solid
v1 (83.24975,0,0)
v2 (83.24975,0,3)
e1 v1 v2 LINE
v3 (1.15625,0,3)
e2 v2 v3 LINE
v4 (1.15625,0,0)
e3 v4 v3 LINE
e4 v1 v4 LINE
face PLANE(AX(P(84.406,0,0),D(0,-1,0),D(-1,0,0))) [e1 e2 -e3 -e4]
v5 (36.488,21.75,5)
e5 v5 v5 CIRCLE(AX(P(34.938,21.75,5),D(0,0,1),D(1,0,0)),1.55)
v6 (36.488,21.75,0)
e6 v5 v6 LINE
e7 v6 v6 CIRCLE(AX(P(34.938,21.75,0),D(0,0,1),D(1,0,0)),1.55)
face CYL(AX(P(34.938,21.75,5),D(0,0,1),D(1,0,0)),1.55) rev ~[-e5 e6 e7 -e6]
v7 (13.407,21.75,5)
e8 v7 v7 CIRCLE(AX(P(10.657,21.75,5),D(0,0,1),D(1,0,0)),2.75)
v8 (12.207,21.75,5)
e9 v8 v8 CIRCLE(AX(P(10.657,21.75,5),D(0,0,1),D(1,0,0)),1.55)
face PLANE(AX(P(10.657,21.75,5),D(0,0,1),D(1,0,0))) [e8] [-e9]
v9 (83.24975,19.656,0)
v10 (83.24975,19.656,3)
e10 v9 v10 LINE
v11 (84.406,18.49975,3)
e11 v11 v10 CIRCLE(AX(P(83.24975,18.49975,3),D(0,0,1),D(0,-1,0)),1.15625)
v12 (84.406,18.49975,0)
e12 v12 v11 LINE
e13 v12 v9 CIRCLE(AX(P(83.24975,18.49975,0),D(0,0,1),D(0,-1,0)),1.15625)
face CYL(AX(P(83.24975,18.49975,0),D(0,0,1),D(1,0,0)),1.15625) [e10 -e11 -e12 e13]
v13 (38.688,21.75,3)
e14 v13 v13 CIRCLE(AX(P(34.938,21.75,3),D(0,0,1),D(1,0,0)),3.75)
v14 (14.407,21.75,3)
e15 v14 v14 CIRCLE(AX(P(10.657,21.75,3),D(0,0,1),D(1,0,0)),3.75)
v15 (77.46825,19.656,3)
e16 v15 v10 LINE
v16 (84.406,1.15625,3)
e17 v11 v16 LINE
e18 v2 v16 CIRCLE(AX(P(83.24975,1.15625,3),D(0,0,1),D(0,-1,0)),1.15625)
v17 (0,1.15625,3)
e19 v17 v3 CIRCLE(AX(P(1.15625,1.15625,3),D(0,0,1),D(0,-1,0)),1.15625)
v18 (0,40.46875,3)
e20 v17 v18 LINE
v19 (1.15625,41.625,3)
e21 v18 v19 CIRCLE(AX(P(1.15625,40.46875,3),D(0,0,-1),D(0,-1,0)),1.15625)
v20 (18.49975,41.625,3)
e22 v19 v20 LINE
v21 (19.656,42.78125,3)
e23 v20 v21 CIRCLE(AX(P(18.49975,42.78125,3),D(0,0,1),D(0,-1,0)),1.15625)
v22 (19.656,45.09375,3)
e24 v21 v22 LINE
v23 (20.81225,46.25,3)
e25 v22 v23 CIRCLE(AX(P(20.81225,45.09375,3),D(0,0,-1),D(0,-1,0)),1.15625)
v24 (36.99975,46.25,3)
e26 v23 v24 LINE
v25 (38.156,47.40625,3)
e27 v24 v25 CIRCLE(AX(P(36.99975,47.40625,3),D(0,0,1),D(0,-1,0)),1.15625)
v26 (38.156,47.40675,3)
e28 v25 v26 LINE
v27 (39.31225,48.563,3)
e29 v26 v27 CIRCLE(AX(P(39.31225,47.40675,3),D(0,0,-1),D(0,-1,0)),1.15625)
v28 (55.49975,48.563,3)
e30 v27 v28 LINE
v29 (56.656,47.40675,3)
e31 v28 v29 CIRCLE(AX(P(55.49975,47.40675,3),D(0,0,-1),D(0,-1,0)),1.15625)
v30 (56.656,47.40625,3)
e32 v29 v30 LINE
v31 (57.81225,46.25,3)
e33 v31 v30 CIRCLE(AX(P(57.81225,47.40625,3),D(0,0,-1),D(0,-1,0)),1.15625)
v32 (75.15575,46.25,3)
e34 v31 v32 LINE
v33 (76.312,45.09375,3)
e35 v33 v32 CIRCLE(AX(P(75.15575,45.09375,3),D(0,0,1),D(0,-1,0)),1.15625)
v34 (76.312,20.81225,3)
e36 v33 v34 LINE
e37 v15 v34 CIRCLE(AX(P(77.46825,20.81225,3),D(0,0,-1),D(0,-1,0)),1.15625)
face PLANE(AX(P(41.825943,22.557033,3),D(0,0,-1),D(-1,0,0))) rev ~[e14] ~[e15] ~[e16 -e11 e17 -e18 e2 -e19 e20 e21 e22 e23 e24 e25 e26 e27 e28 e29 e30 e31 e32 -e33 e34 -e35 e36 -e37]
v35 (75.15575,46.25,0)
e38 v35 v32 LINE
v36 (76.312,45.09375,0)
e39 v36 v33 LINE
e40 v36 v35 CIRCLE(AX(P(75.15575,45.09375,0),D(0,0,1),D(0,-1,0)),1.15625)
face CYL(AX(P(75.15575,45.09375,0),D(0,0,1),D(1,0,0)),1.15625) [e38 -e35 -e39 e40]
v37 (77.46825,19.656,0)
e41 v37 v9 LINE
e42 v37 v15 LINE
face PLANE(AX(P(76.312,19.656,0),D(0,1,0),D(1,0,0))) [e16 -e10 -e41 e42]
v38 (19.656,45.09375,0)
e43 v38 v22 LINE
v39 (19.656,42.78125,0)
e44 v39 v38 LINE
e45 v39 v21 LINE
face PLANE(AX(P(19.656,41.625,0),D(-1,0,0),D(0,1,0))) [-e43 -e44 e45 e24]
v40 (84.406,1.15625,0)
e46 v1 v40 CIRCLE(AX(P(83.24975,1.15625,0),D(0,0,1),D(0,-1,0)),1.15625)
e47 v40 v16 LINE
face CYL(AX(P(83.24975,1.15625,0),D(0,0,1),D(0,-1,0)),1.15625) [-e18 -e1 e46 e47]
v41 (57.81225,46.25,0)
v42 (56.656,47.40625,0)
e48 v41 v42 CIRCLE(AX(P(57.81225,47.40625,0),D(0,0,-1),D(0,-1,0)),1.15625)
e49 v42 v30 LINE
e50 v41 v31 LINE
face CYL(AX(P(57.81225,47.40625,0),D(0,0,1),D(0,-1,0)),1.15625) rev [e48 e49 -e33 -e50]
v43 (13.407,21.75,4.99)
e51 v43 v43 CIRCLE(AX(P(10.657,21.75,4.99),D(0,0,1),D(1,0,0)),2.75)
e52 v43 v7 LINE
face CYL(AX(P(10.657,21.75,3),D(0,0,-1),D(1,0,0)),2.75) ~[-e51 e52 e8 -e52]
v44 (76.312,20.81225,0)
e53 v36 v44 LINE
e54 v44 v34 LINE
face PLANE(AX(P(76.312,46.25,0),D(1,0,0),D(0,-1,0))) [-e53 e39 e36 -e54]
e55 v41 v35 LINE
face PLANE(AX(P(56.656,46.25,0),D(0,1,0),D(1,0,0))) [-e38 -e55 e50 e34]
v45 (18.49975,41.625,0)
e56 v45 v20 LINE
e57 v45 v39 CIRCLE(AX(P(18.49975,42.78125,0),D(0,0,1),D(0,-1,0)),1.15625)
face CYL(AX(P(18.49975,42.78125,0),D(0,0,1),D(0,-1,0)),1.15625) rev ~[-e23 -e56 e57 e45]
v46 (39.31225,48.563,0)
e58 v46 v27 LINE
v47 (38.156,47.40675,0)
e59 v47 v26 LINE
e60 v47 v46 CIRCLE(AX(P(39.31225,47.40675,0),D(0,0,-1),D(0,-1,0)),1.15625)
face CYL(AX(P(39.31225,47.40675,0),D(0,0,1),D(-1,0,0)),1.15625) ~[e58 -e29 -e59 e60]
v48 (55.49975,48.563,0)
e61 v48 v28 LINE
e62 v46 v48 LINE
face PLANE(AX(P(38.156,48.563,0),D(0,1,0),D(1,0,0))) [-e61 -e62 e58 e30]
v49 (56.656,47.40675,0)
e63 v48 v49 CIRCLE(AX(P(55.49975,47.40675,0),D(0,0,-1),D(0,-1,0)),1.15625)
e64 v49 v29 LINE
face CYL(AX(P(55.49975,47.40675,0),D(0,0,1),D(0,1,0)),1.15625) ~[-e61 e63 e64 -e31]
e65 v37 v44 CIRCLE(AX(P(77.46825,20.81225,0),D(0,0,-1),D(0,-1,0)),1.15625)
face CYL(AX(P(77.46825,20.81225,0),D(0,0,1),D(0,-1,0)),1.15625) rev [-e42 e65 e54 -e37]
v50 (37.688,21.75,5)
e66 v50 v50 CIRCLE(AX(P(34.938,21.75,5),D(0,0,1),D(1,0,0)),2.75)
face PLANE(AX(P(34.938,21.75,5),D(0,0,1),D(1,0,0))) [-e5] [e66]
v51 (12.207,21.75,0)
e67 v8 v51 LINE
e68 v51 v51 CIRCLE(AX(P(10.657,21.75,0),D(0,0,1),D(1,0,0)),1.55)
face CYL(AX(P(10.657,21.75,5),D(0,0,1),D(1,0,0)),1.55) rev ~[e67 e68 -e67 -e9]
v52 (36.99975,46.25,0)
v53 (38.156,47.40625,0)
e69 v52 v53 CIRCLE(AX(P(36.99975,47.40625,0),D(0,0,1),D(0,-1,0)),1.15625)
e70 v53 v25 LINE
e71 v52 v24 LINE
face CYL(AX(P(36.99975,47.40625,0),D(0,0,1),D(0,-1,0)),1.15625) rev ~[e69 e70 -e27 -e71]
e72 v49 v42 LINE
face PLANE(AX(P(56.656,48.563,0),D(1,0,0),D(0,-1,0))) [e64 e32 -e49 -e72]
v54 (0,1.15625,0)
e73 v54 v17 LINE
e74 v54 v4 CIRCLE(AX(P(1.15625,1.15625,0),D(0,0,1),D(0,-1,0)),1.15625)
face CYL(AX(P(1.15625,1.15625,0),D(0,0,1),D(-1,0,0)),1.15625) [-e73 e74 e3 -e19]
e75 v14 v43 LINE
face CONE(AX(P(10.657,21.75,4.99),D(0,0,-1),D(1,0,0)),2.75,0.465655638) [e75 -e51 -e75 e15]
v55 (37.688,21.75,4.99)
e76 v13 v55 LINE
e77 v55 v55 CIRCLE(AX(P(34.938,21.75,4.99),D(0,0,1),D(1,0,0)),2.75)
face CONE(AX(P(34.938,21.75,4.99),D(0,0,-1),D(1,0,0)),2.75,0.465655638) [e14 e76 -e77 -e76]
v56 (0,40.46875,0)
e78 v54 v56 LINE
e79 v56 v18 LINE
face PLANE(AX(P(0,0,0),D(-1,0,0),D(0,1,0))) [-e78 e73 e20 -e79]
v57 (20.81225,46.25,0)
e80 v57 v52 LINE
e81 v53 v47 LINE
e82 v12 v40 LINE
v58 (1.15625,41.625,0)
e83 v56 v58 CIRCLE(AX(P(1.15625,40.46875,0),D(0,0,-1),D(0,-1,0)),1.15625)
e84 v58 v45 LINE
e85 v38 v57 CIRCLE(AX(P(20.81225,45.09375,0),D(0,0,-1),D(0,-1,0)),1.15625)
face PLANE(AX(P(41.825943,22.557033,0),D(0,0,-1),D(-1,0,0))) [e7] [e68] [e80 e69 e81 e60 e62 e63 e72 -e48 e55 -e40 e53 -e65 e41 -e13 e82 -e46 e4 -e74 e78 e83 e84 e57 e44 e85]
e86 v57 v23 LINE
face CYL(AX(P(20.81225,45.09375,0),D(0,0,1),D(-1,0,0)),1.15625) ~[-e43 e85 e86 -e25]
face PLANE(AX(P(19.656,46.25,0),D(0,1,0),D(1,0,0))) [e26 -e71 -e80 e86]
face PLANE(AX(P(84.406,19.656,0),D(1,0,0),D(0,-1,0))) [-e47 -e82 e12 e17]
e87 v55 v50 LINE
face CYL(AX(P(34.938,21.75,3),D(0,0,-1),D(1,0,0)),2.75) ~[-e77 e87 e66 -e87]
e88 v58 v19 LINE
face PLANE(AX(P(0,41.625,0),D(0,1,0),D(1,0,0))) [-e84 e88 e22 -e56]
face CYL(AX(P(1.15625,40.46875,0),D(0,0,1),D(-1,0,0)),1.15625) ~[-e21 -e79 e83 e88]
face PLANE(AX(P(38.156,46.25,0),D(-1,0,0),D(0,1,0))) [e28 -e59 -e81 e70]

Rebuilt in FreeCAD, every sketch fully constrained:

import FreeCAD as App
import Part
import Sketcher

V = App.Vector
Q = App.Units.Quantity


def edges_at(feature, points):
    """Names of the edges that pass closest to the given points."""
    edges = feature.Shape.Edges
    near = lambda p: min(range(len(edges)), key=lambda i: edges[i].distToShape(Part.Vertex(*p))[0])
    return sorted({f"Edge{near(p) + 1}" for p in points})


def add_polygon(sketch, points):
    """Adds a closed chain of lines whose ends are joined by coincident constraints."""
    first, n = sketch.GeometryCount, len(points)
    for a, b in zip(points, points[1:] + points[:1]):
        sketch.addGeometry(Part.LineSegment(App.Vector(*a, 0), App.Vector(*b, 0)), False)
    for i in range(n):
        sketch.addConstraint(Sketcher.Constraint("Coincident", first + i, 2, first + (i + 1) % n, 1))

doc = App.newDocument("Part")
body = doc.addObject("PartDesign::Body", "Body")

# Sketch on XY plane
sketch1 = body.newObject("Sketcher::SketchObject", "Sketch")
sketch1.AttachmentSupport = (doc.getObject("XY_Plane"), [""])
sketch1.MapMode = "FlatFace"
add_polygon(sketch1, [(0, 41.6), (0, 0), (84.4, 0), (84.4, 19.7), (76.3, 19.7), (76.3, 46.2), (56.7, 46.2), (56.7, 48.6), (38.2, 48.6), (38.2, 46.2), (19.7, 46.2), (19.7, 41.6)])  # lines 0-11
sketch1.addConstraint([
    Sketcher.Constraint("Vertical", 0),
    Sketcher.Constraint("Horizontal", 1),
    Sketcher.Constraint("Vertical", 2),
    Sketcher.Constraint("Horizontal", 3),
    Sketcher.Constraint("Vertical", 4),
    Sketcher.Constraint("Horizontal", 5),
    Sketcher.Constraint("Vertical", 6),
    Sketcher.Constraint("Horizontal", 7),
    Sketcher.Constraint("Vertical", 8),
    Sketcher.Constraint("Horizontal", 9),
    Sketcher.Constraint("Vertical", 10),
    Sketcher.Constraint("Horizontal", 11),
    Sketcher.Constraint("Coincident", 0, 2, -1, 1),
    Sketcher.Constraint("Horizontal", 5, 2, 8, 2),
    Sketcher.Constraint("Equal", 7, 9),
    Sketcher.Constraint("Equal", 5, 11),
    Sketcher.Constraint("Equal", 11, 2),
    Sketcher.Constraint("DistanceX", 7, 2, 7, 1, Q("18.5 mm")),
    Sketcher.Constraint("DistanceX", 1, 1, 1, 2, Q("84.406 mm")),
    Sketcher.Constraint("DistanceX", 3, 2, 3, 1, Q("8.094 mm")),
    Sketcher.Constraint("DistanceY", 0, 2, 0, 1, Q("41.625 mm")),
    Sketcher.Constraint("DistanceY", 4, 1, 4, 2, Q("26.594 mm")),
    Sketcher.Constraint("DistanceY", 6, 1, 6, 2, Q("2.313 mm")),
])
pad1 = body.newObject("PartDesign::Pad", "Pad")
pad1.Profile = sketch1
pad1.Length = 3

# Sketch on XY plane
sketch2 = body.newObject("Sketcher::SketchObject", "Sketch001")
sketch2.AttachmentSupport = (doc.getObject("XY_Plane"), [""])
sketch2.MapMode = "FlatFace"
sketch2.AttachmentOffset = App.Placement(V(0, 0, 3), App.Rotation())
sketch2.addGeometry([
    Part.Circle(V(10.7, 21.8, 0), V(0, 0, 1), 2.8),
    Part.Circle(V(34.9, 21.8, 0), V(0, 0, 1), 2.8),
], False)
sketch2.addConstraint([
    Sketcher.Constraint("Equal", 0, 1),
    Sketcher.Constraint("Horizontal", 0, 3, 1, 3),
    Sketcher.Constraint("Diameter", 0, Q("5.5 mm")),
    Sketcher.Constraint("DistanceY", -1, 1, 0, 3, Q("21.75 mm")),
    Sketcher.Constraint("DistanceX", -1, 1, 0, 3, Q("10.657 mm")),
    Sketcher.Constraint("DistanceX", -1, 1, 1, 3, Q("34.938 mm")),
])
pad2 = body.newObject("PartDesign::Pad", "Pad001")
pad2.Profile = sketch2
pad2.Length = 2
doc.recompute()

chamfer = body.newObject("PartDesign::Chamfer", "Chamfer")
chamfer.Base = (pad2, edges_at(pad2, [(7.907, 21.75, 3), (32.188, 21.75, 3)]))
chamfer.ChamferType = "Two distances"
chamfer.Size = 1
chamfer.Size2 = 1.99

# Sketch on XY plane
sketch3 = body.newObject("Sketcher::SketchObject", "Sketch002")
sketch3.AttachmentSupport = (doc.getObject("XY_Plane"), [""])
sketch3.MapMode = "FlatFace"
sketch3.AttachmentOffset = App.Placement(V(0, 0, 5), App.Rotation())
sketch3.addGeometry([
    Part.Circle(V(10.7, 21.8, 0), V(0, 0, 1), 1.6),
    Part.Circle(V(34.9, 21.8, 0), V(0, 0, 1), 1.6),
], False)
sketch3.addConstraint([
    Sketcher.Constraint("Equal", 0, 1),
    Sketcher.Constraint("Horizontal", 0, 3, 1, 3),
    Sketcher.Constraint("Diameter", 0, Q("3.1 mm")),
    Sketcher.Constraint("DistanceY", -1, 1, 0, 3, Q("21.75 mm")),
    Sketcher.Constraint("DistanceX", -1, 1, 0, 3, Q("10.657 mm")),
    Sketcher.Constraint("DistanceX", -1, 1, 1, 3, Q("34.938 mm")),
])
pocket1 = body.newObject("PartDesign::Pocket", "Pocket")
pocket1.Profile = sketch3
pocket1.Length = 5
doc.recompute()

fillet = body.newObject("PartDesign::Fillet", "Fillet")
fillet.Base = (pocket1, edges_at(pocket1, [
    (84.406, 0, 1.5),
    (84.406, 19.656, 1.5),
    (76.312, 19.656, 1.5),
    (76.312, 46.25, 1.5),
    (56.656, 46.25, 1.5),
    (56.656, 48.563, 1.5),
    (38.156, 48.563, 1.5),
    (19.656, 46.25, 1.5),
    (0, 41.625, 1.5),
    (38.156, 46.25, 1.5),
    (19.656, 41.625, 1.5),
    (0, 0, 1.5),
]))
fillet.Radius = 1.15625

doc.recompute()
